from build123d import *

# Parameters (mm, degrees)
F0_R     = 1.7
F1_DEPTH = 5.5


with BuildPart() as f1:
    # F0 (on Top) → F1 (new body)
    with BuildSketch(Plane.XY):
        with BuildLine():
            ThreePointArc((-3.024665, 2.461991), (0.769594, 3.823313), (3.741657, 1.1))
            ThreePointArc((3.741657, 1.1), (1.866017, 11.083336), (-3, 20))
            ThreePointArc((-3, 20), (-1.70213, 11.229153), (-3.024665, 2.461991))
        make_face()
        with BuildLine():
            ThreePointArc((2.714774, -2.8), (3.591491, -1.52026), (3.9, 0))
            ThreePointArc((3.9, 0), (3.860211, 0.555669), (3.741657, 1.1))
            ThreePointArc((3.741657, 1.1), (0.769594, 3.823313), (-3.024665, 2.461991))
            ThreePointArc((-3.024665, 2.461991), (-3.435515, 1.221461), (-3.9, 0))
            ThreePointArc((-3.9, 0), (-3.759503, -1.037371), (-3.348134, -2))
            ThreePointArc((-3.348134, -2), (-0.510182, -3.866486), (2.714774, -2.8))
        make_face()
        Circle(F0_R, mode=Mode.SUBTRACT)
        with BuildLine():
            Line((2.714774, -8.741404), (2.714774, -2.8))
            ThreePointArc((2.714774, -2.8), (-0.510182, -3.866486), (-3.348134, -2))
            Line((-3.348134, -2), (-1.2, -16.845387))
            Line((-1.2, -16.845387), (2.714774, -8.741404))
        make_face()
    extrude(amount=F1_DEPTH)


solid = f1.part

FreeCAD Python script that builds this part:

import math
import FreeCAD as App
import Part
import Sketcher

doc = App.newDocument("Part")
body = doc.addObject("PartDesign::Body", "Body")

# Sketch on XY plane
sketch1 = doc.addObject("Sketcher::SketchObject", "Sketch")
body.addObject(sketch1)
sketch1.AttachmentSupport = (doc.XY_Plane, [""])
sketch1.MapMode = "FlatFace"
sketch1.addGeometry(Part.ArcOfCircle(Part.Circle(App.Vector(-28.7, 0.2, 0), App.Vector(0, 0, 1), 32.5), math.radians(2), math.radians(38)), False)
sketch1.addGeometry(Part.ArcOfCircle(Part.Circle(App.Vector(-31.7, 11.3, 0), App.Vector(0, 0, 1), 30), math.radians(-17), math.radians(17)), False)
sketch1.addGeometry(Part.ArcOfCircle(Part.Circle(App.Vector(-31.7, 11.3, 0), App.Vector(0, 0, 1), 30), math.radians(-22.07), math.radians(-17.08)), False)
sketch1.addGeometry(Part.ArcOfCircle(Part.Circle(App.Vector(0, 0, 0), App.Vector(0, 0, 1), 3.9), math.radians(180), math.radians(211)), False)
sketch1.addGeometry(Part.LineSegment(App.Vector(-3.3, -2, 0), App.Vector(-1.2, -16.8, 0)), False)
sketch1.addGeometry(Part.LineSegment(App.Vector(-1.2, -16.8, 0), App.Vector(2.7, -8.7, 0)), False)
sketch1.addGeometry(Part.LineSegment(App.Vector(2.7, -8.7, 0), App.Vector(2.7, -2.8, 0)), False)
sketch1.addGeometry(Part.ArcOfCircle(Part.Circle(App.Vector(0, 0, 0), App.Vector(0, 0, 1), 3.9), math.radians(-46), math.radians(0)), False)
sketch1.addGeometry(Part.ArcOfCircle(Part.Circle(App.Vector(0, 0, 0), App.Vector(0, 0, 1), 3.9), math.radians(0), math.radians(16.38)), False)
sketch1.addGeometry(Part.Circle(App.Vector(0, 0, 0), App.Vector(0, 0, 1), 1.7), False)
sketch1.addConstraint(Sketcher.Constraint("Coincident", 0, 2, 1, 2))
sketch1.addConstraint(Sketcher.Constraint("Tangent", 1, 1, 2, 2))
sketch1.addConstraint(Sketcher.Constraint("Coincident", 2, 1, 3, 1))
sketch1.addConstraint(Sketcher.Constraint("Coincident", 3, 2, 4, 1))
sketch1.addConstraint(Sketcher.Constraint("Coincident", 4, 2, 5, 1))
sketch1.addConstraint(Sketcher.Constraint("Coincident", 5, 2, 6, 1))
sketch1.addConstraint(Sketcher.Constraint("Coincident", 6, 2, 7, 1))
sketch1.addConstraint(Sketcher.Constraint("Tangent", 7, 2, 8, 1))
sketch1.addConstraint(Sketcher.Constraint("Coincident", 8, 2, 0, 1))
sketch1.addConstraint(Sketcher.Constraint("Vertical", 6))
sketch1.addConstraint(Sketcher.Constraint("Coincident", 3, 3, -1, 1))
sketch1.addConstraint(Sketcher.Constraint("Coincident", 7, 3, -1, 1))
sketch1.addConstraint(Sketcher.Constraint("Coincident", 9, 3, -1, 1))
sketch1.addConstraint(Sketcher.Constraint("Symmetric", 2, 1, 7, 2, -1, 1))
sketch1.addConstraint(Sketcher.Constraint("PointOnObject", 2, 1, -1))
sketch1.addConstraint(Sketcher.Constraint("Radius", 1, 29.999999))
sketch1.addConstraint(Sketcher.Constraint("Diameter", 9, 3.4))
sketch1.addConstraint(Sketcher.Constraint("Radius", 7, 3.900001))
sketch1.addConstraint(Sketcher.Constraint("Distance", 4, 15.0))
sketch1.addConstraint(Sketcher.Constraint("Distance", 5, 9.0))
sketch1.addConstraint(Sketcher.Constraint("DistanceX", 0, 2, -1, 1, 3.0))
sketch1.addConstraint(Sketcher.Constraint("DistanceY", -1, 1, 0, 2, 20.0))
sketch1.addConstraint(Sketcher.Constraint("DistanceY", 3, 2, -1, 1, 2.0))
sketch1.addConstraint(Sketcher.Constraint("DistanceX", 4, 2, -1, 1, 1.2))
sketch1.addConstraint(Sketcher.Constraint("DistanceY", 6, 2, -1, 1, 2.8))
sketch1.addConstraint(Sketcher.Constraint("DistanceY", -1, 1, 8, 2, 1.1))
sketch1.addConstraint(Sketcher.Constraint("Radius", 8, 3.900019))
sketch1.addConstraint(Sketcher.Constraint("Radius", 0, 32.499995))
sketch1.addConstraint(Sketcher.Constraint("Radius", 2, 29.999883))
sketch1.addConstraint(Sketcher.Constraint("DistanceY", -1, 1, 1, 1, 2.461991))
pad1 = doc.addObject("PartDesign::Pad", "Pad")
body.addObject(pad1)
pad1.Profile = sketch1
pad1.Length = 5.5

doc.recompute()
